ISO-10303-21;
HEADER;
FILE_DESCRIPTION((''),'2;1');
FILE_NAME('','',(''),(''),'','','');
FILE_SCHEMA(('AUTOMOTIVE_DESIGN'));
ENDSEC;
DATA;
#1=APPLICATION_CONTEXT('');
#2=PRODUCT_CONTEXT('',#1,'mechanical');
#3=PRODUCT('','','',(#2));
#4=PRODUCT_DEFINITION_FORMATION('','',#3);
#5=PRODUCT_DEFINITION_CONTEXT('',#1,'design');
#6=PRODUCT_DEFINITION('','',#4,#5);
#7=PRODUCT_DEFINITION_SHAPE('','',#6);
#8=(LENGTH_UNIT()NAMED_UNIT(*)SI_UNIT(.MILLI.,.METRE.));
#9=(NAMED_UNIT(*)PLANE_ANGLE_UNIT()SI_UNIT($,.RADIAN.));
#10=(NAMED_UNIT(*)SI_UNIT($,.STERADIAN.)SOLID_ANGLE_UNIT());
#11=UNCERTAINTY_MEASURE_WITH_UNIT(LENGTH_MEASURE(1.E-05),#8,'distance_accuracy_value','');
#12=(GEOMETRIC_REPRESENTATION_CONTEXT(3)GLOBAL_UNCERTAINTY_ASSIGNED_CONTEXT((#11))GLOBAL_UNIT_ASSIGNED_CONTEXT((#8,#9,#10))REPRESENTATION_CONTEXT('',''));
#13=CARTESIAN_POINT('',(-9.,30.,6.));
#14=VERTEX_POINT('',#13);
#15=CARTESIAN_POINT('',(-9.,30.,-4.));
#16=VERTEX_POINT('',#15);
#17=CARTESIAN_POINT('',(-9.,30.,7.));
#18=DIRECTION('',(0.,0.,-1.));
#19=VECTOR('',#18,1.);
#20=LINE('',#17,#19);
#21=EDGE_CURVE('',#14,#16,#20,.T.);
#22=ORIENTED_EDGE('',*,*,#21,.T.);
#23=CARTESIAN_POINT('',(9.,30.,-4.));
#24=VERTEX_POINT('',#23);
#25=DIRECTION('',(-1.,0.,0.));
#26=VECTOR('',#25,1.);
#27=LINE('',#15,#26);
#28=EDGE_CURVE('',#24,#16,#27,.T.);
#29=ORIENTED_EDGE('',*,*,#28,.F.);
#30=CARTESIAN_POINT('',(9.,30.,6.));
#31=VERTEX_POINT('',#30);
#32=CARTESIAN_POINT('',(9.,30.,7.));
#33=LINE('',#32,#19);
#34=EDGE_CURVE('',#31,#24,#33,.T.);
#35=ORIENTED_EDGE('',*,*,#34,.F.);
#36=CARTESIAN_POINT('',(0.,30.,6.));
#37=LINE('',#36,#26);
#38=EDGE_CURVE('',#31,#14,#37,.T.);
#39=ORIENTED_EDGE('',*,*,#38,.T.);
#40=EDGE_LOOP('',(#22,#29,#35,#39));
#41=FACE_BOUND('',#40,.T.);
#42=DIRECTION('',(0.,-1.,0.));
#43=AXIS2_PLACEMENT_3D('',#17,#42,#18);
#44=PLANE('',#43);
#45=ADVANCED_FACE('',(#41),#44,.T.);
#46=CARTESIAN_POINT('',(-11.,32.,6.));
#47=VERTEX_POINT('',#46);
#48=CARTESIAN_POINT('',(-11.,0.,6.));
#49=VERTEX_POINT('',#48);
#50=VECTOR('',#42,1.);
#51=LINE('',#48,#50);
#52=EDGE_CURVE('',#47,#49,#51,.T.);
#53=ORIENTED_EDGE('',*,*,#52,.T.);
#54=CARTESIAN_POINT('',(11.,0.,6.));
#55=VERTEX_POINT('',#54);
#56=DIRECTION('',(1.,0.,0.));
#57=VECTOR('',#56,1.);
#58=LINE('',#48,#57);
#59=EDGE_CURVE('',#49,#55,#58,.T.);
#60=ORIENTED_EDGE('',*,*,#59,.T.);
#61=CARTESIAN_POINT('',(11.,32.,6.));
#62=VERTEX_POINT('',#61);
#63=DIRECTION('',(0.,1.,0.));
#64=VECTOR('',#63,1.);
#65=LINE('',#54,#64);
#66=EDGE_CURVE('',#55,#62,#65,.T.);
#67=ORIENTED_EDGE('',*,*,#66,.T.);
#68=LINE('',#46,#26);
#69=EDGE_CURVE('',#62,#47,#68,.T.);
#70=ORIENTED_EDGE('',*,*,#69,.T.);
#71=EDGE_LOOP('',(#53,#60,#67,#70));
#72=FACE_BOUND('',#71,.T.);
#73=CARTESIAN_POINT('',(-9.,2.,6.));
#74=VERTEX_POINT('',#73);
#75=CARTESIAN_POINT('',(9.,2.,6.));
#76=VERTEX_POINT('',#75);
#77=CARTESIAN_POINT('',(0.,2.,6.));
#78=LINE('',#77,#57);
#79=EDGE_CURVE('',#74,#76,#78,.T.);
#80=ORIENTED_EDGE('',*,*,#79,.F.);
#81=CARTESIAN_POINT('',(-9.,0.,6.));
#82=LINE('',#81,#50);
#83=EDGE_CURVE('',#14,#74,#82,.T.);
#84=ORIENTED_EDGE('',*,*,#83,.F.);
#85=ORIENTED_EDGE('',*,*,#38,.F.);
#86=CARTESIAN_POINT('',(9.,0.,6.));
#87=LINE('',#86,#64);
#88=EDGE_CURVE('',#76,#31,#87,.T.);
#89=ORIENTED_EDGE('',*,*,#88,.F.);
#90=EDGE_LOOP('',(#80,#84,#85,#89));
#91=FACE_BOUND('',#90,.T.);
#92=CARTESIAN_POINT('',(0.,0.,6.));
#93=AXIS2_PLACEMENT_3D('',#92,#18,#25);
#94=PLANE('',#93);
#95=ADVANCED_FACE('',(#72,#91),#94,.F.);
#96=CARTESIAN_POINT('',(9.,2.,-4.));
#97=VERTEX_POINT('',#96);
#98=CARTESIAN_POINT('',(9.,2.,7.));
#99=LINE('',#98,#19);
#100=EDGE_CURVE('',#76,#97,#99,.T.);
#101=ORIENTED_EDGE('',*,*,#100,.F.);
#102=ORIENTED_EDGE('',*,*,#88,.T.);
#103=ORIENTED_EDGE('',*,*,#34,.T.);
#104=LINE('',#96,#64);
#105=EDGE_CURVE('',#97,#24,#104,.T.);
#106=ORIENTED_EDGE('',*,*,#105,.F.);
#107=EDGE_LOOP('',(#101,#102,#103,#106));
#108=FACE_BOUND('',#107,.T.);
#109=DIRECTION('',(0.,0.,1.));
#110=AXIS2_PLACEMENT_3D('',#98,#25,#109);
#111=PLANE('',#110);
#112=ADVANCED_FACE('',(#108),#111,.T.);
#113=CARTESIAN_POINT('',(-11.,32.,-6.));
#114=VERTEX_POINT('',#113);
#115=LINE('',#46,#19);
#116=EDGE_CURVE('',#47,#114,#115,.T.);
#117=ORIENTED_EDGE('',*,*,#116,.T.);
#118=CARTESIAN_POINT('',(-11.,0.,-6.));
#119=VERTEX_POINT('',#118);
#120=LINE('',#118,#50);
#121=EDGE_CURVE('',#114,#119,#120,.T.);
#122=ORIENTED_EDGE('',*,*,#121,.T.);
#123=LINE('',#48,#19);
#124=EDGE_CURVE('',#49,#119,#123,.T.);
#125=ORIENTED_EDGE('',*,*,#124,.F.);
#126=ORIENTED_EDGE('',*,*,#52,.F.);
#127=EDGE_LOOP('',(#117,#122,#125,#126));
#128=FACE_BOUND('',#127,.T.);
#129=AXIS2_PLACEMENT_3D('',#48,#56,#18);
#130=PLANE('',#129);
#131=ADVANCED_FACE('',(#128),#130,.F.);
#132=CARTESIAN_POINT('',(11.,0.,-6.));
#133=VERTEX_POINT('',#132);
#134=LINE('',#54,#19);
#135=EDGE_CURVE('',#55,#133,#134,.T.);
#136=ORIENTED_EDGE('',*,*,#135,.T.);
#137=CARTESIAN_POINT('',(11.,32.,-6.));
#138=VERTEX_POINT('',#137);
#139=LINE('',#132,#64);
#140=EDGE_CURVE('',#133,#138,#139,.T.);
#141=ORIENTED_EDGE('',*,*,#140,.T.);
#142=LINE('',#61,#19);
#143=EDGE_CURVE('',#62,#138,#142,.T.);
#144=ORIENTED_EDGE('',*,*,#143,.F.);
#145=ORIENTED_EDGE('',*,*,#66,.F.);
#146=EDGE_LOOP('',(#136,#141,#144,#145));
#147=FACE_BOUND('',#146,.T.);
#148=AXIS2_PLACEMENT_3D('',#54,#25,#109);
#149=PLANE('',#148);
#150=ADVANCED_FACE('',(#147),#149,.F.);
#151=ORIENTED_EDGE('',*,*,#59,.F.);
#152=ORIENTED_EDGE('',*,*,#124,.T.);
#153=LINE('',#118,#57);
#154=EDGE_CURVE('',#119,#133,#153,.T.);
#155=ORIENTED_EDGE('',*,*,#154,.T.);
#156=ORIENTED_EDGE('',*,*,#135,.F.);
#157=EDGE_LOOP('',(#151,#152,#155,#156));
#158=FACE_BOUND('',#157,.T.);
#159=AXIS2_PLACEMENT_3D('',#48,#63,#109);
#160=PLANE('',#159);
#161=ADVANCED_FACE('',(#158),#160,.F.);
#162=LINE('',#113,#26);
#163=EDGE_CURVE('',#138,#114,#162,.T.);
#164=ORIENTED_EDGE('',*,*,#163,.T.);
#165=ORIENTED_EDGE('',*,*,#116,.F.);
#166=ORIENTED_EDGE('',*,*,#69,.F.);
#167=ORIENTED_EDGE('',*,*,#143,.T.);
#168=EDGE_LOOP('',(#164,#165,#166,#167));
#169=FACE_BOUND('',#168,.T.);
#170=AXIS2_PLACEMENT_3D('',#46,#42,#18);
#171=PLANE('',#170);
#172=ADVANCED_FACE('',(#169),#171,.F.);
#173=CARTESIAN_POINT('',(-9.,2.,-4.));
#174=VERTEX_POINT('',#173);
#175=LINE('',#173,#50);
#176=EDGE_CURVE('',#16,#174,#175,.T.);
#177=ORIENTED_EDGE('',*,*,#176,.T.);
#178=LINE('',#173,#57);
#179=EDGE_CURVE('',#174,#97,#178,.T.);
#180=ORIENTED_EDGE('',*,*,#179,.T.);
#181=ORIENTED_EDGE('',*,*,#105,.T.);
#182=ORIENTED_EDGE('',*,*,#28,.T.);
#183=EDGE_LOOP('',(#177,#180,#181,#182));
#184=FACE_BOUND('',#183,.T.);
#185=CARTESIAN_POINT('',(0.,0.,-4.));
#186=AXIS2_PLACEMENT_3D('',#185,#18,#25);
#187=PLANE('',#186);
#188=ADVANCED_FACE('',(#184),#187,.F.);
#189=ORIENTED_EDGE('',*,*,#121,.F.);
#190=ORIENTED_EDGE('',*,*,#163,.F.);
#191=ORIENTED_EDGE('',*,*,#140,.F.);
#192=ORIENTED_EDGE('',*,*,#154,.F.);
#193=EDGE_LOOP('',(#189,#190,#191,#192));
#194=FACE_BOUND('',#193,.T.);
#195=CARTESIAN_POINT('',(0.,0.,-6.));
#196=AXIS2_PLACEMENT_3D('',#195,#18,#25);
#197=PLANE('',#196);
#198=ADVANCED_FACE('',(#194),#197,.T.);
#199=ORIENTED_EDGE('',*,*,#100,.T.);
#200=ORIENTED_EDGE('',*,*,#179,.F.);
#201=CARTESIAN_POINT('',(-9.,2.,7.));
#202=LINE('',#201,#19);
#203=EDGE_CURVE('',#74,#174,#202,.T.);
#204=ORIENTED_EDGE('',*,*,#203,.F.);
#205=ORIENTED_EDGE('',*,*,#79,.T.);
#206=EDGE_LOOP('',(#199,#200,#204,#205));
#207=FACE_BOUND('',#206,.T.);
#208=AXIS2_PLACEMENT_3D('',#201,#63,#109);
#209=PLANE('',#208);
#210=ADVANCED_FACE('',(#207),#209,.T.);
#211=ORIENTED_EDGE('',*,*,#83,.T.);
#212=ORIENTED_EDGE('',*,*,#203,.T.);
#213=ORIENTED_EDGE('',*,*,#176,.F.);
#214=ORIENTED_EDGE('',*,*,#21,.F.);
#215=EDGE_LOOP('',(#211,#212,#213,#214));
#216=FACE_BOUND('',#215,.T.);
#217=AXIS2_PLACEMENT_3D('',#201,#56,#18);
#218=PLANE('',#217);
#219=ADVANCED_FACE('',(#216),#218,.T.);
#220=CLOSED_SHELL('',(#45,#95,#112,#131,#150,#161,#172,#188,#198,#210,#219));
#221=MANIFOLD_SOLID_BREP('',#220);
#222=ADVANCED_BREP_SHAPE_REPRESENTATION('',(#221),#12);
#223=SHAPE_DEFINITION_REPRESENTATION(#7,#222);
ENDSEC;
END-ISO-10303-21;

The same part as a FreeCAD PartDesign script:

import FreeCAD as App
import Part
import Sketcher

V = App.Vector
Q = App.Units.Quantity

doc = App.newDocument("Part")
params = doc.addObject("Spreadsheet::Sheet", "Params")
for row, (alias, value) in enumerate([
    ("sketch1_width", "22 mm"),
    ("sketch1_height", "32 mm"),
    ("pad1_length", "12 mm"),
    ("sketch2_width", "18 mm"),
    ("sketch2_height", "28 mm"),
    ("pad2_length", "11 mm"),
], start=1):
    params.set(f"A{row}", alias)
    params.set(f"B{row}", "=" + value)
    params.setAlias(f"B{row}", alias)

body = doc.addObject("PartDesign::Body", "Body")

sketch1 = body.newObject("Sketcher::SketchObject", "Sketch")
sketch1.AttachmentSupport = (doc.getObject("XY_Plane"), [""])
sketch1.MapMode = "FlatFace"
sketch1.AttachmentOffset = App.Placement(V(0, 0, -6), App.Rotation())
sketch1.addGeometry([
    Part.LineSegment(V(-11, 32, 0), V(-11, 0, 0)),
    Part.LineSegment(V(-11, 0, 0), V(11, 0, 0)),
    Part.LineSegment(V(11, 0, 0), V(11, 32, 0)),
    Part.LineSegment(V(11, 32, 0), V(-11, 32, 0)),
], False)
sketch1.addConstraint([
    Sketcher.Constraint("Coincident", 0, 2, 1, 1),
    Sketcher.Constraint("Coincident", 1, 2, 2, 1),
    Sketcher.Constraint("Coincident", 2, 2, 3, 1),
    Sketcher.Constraint("Coincident", 3, 2, 0, 1),
    Sketcher.Constraint("Vertical", 0),
    Sketcher.Constraint("Horizontal", 1),
    Sketcher.Constraint("Vertical", 2),
    Sketcher.Constraint("Horizontal", 3),
    Sketcher.Constraint("Symmetric", 0, 2, 1, 2, -1, 1),
    Sketcher.Constraint("DistanceX", 1, 1, 1, 2, Q("22 mm")),
    Sketcher.Constraint("DistanceY", 0, 2, 0, 1, Q("32 mm")),
])
sketch1.setExpression("Constraints[9]", "Params.sketch1_width")
sketch1.setExpression("Constraints[10]", "Params.sketch1_height")
pad1 = body.newObject("PartDesign::Pad", "Pad")
pad1.Profile = sketch1
pad1.setExpression("Length", "Params.pad1_length")
body2 = doc.addObject("PartDesign::Body", "Body001")

sketch2 = body2.newObject("Sketcher::SketchObject", "Sketch001")
sketch2.AttachmentSupport = (doc.getObject("XY_Plane001"), [""])
sketch2.MapMode = "FlatFace"
sketch2.AttachmentOffset = App.Placement(V(0, 0, -4), App.Rotation())
sketch2.addGeometry([
    Part.LineSegment(V(-9, 30, 0), V(-9, 2, 0)),
    Part.LineSegment(V(-9, 2, 0), V(9, 2, 0)),
    Part.LineSegment(V(9, 2, 0), V(9, 30, 0)),
    Part.LineSegment(V(9, 30, 0), V(-9, 30, 0)),
], False)
sketch2.addConstraint([
    Sketcher.Constraint("Coincident", 0, 2, 1, 1),
    Sketcher.Constraint("Coincident", 1, 2, 2, 1),
    Sketcher.Constraint("Coincident", 2, 2, 3, 1),
    Sketcher.Constraint("Coincident", 3, 2, 0, 1),
    Sketcher.Constraint("Vertical", 0),
    Sketcher.Constraint("Horizontal", 1),
    Sketcher.Constraint("Vertical", 2),
    Sketcher.Constraint("Horizontal", 3),
    Sketcher.Constraint("DistanceX", 1, 1, 1, 2, Q("18 mm")),
    Sketcher.Constraint("DistanceY", 0, 2, 0, 1, Q("28 mm")),
    Sketcher.Constraint("DistanceX", 0, 2, -1, 1, Q("9 mm")),
    Sketcher.Constraint("DistanceY", -1, 1, 0, 2, Q("2 mm")),
])
sketch2.setExpression("Constraints[8]", "Params.sketch2_width")
sketch2.setExpression("Constraints[9]", "Params.sketch2_height")
pad2 = body2.newObject("PartDesign::Pad", "Pad001")
pad2.Profile = sketch2
pad2.setExpression("Length", "Params.pad2_length")
doc.recompute()

boolean = body.newObject("PartDesign::Boolean", "Boolean")
boolean.Type = "Cut"
boolean.addObjects([body2])

doc.recompute()
